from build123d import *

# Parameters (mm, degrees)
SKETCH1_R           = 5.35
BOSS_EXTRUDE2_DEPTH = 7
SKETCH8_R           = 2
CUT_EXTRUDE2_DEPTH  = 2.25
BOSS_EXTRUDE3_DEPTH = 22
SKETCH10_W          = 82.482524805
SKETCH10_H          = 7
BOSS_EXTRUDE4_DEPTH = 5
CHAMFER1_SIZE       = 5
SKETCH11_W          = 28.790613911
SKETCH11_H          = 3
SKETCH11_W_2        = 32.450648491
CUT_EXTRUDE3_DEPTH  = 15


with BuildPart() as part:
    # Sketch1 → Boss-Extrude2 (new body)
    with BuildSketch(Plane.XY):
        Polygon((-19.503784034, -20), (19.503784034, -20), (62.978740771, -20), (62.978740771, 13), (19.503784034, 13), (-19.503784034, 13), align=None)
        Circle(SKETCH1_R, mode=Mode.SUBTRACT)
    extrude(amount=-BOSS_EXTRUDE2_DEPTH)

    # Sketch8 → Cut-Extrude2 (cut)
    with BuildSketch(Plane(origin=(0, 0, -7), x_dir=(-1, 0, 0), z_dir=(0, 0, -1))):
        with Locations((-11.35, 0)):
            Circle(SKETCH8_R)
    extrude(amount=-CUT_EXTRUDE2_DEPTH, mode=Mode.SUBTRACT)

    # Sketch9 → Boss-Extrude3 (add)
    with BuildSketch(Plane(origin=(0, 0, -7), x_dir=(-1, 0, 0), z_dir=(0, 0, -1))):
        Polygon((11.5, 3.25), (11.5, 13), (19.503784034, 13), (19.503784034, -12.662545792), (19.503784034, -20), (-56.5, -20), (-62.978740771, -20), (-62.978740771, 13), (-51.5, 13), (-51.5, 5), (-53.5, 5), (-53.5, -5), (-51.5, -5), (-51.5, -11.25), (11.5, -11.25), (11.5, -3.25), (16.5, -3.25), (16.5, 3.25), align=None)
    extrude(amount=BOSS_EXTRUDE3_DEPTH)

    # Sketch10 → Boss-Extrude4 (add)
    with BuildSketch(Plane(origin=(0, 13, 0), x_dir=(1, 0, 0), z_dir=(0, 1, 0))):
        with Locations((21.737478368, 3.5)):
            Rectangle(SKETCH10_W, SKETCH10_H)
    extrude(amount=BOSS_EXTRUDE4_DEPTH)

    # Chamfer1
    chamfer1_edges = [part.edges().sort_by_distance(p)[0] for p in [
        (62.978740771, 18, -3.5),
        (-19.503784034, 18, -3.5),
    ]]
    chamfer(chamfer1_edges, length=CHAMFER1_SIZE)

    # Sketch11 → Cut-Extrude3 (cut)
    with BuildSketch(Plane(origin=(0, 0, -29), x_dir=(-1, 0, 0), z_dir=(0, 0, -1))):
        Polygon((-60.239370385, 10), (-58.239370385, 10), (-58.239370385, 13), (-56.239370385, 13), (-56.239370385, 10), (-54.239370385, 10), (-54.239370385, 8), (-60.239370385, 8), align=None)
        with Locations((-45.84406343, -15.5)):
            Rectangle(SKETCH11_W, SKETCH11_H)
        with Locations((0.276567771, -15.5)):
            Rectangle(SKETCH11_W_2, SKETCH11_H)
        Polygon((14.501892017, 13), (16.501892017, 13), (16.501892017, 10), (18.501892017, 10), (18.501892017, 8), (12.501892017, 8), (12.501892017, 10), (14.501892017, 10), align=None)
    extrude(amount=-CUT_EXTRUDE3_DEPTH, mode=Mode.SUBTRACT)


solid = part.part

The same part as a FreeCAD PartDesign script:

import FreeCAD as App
import Part
import Sketcher
from FreeCAD import Vector
Q = App.Units.Quantity


def edges_at(feature, points):
    """Names of the edges that pass closest to the given points."""
    edges = feature.Shape.Edges
    near = lambda p: min(range(len(edges)), key=lambda i: edges[i].distToShape(Part.Vertex(*p))[0])
    return sorted({f"Edge{near(p) + 1}" for p in points})


def add_polygon(sketch, points):
    """Adds a closed chain of lines whose ends are joined by coincident constraints."""
    first, n = sketch.GeometryCount, len(points)
    for a, b in zip(points, points[1:] + points[:1]):
        sketch.addGeometry(Part.LineSegment(App.Vector(*a, 0), App.Vector(*b, 0)), False)
    for i in range(n):
        sketch.addConstraint(Sketcher.Constraint("Coincident", first + i, 2, first + (i + 1) % n, 1))

doc = App.newDocument("Part")
body = doc.addObject("PartDesign::Body", "Body")

sketch1 = doc.addObject("Sketcher::SketchObject", "Sketch")
body.addObject(sketch1)
sketch1.AttachmentSupport = (doc.XY_Plane, [""])
sketch1.MapMode = "FlatFace"
add_polygon(sketch1, [(-20, -20), (63, -20), (63, 13), (-20, 13)])
sketch1.addGeometry(Part.Circle(Vector(0, 0, 0), Vector(0, 0, 1), 5), False)
sketch1.addConstraint(Sketcher.Constraint("Horizontal", 0))
sketch1.addConstraint(Sketcher.Constraint("Vertical", 1))
sketch1.addConstraint(Sketcher.Constraint("Horizontal", 2))
sketch1.addConstraint(Sketcher.Constraint("Vertical", 3))
sketch1.addConstraint(Sketcher.Constraint("Coincident", 4, 3, -1, 1))
sketch1.addConstraint(Sketcher.Constraint("Diameter", 4, Q("10.7 mm")))
sketch1.addConstraint(Sketcher.Constraint("DistanceY", 1, 1, 1, 2, Q("33 mm")))
sketch1.addConstraint(Sketcher.Constraint("DistanceY", 0, 2, -1, 1, Q("20 mm")))
sketch1.addConstraint(Sketcher.Constraint("DistanceX", 0, 1, 0, 2, Q("82.482525 mm")))
sketch1.addConstraint(Sketcher.Constraint("DistanceX", -1, 1, 0, 2, Q("62.978741 mm")))
pad1 = doc.addObject("PartDesign::Pad", "Pad")
body.addObject(pad1)
pad1.Profile = sketch1
pad1.Length = 7
pad1.Reversed = True

sketch2 = doc.addObject("Sketcher::SketchObject", "Sketch001")
body.addObject(sketch2)
sketch2.AttachmentSupport = (doc.XY_Plane, [""])
sketch2.MapMode = "FlatFace"
sketch2.AttachmentOffset = App.Placement(Vector(0, 0, -7), App.Rotation())
sketch2.addGeometry(Part.Circle(Vector(11.3, 0, 0), Vector(0, 0, 1), 2), False)
sketch2.addConstraint(Sketcher.Constraint("PointOnObject", 0, 3, -1))
sketch2.addConstraint(Sketcher.Constraint("Diameter", 0, Q("4 mm")))
sketch2.addConstraint(Sketcher.Constraint("DistanceX", -1, 1, 0, 3, Q("11.35 mm")))
pocket1 = doc.addObject("PartDesign::Pocket", "Pocket")
body.addObject(pocket1)
pocket1.Profile = sketch2
pocket1.Length = 2.25
pocket1.Reversed = True

sketch3 = doc.addObject("Sketcher::SketchObject", "Sketch002")
body.addObject(sketch3)
sketch3.AttachmentSupport = (doc.XY_Plane, [""])
sketch3.MapMode = "FlatFace"
sketch3.AttachmentOffset = App.Placement(Vector(0, 0, -7), App.Rotation())
add_polygon(sketch3, [(-11.5, 13), (-11.5, 3.2), (-16.5, 3.2), (-16.5, -3.2), (-11.5, -3.2), (-11.5, -11.2), (51.5, -11.2), (51.5, -5), (53.5, -5), (53.5, 5), (51.5, 5), (51.5, 13), (63, 13), (63, -20), (-19.5, -20), (-19.5, 13)])
sketch3.addConstraint(Sketcher.Constraint("Vertical", 0))
sketch3.addConstraint(Sketcher.Constraint("Horizontal", 1))
sketch3.addConstraint(Sketcher.Constraint("Vertical", 2))
sketch3.addConstraint(Sketcher.Constraint("Horizontal", 3))
sketch3.addConstraint(Sketcher.Constraint("Vertical", 4))
sketch3.addConstraint(Sketcher.Constraint("Horizontal", 5))
sketch3.addConstraint(Sketcher.Constraint("Vertical", 6))
sketch3.addConstraint(Sketcher.Constraint("Horizontal", 7))
sketch3.addConstraint(Sketcher.Constraint("Vertical", 8))
sketch3.addConstraint(Sketcher.Constraint("Horizontal", 9))
sketch3.addConstraint(Sketcher.Constraint("Vertical", 10))
sketch3.addConstraint(Sketcher.Constraint("Horizontal", 11))
sketch3.addConstraint(Sketcher.Constraint("Vertical", 12))
sketch3.addConstraint(Sketcher.Constraint("Horizontal", 13))
sketch3.addConstraint(Sketcher.Constraint("Vertical", 14))
sketch3.addConstraint(Sketcher.Constraint("Horizontal", 15))
sketch3.addConstraint(Sketcher.Constraint("Symmetric", 0, 2, 3, 2, -1))
sketch3.addConstraint(Sketcher.Constraint("Symmetric", 6, 2, 9, 2, -1))
sketch3.addConstraint(Sketcher.Constraint("Horizontal", 11, 2, 14, 2))
sketch3.addConstraint(Sketcher.Constraint("Equal", 4, 10))
sketch3.addConstraint(Sketcher.Constraint("DistanceX", 1, 2, 1, 1, Q("5 mm")))
sketch3.addConstraint(Sketcher.Constraint("DistanceX", 5, 1, 5, 2, Q("63 mm")))
sketch3.addConstraint(Sketcher.Constraint("DistanceX", 7, 1, 7, 2, Q("2 mm")))
sketch3.addConstraint(Sketcher.Constraint("DistanceY", 4, 2, 4, 1, Q("8 mm")))
sketch3.addConstraint(Sketcher.Constraint("DistanceY", 8, 1, 8, 2, Q("10 mm")))
sketch3.addConstraint(Sketcher.Constraint("DistanceY", 12, 2, 12, 1, Q("33 mm")))
sketch3.addConstraint(Sketcher.Constraint("DistanceY", 2, 2, 2, 1, Q("6.5 mm")))
sketch3.addConstraint(Sketcher.Constraint("DistanceX", 0, 2, -1, 1, Q("11.5 mm")))
sketch3.addConstraint(Sketcher.Constraint("DistanceX", 11, 1, 11, 2, Q("11.478741 mm")))
sketch3.addConstraint(Sketcher.Constraint("DistanceX", 13, 2, 13, 1, Q("82.482525 mm")))
pad2 = doc.addObject("PartDesign::Pad", "Pad001")
body.addObject(pad2)
pad2.Profile = sketch3
pad2.Length = 22
pad2.Reversed = True

sketch4 = doc.addObject("Sketcher::SketchObject", "Sketch003")
body.addObject(sketch4)
sketch4.AttachmentSupport = (doc.XZ_Plane, [""])
sketch4.MapMode = "FlatFace"
sketch4.AttachmentOffset = App.Placement(Vector(0, 0, -13), App.Rotation())
add_polygon(sketch4, [(-20, -7), (-20, 0), (63, 0), (63, -7)])
sketch4.addConstraint(Sketcher.Constraint("Vertical", 0))
sketch4.addConstraint(Sketcher.Constraint("Horizontal", 1))
sketch4.addConstraint(Sketcher.Constraint("Vertical", 2))
sketch4.addConstraint(Sketcher.Constraint("Horizontal", 3))
sketch4.addConstraint(Sketcher.Constraint("PointOnObject", 0, 2, -1))
sketch4.addConstraint(Sketcher.Constraint("DistanceY", 0, 1, 0, 2, Q("7 mm")))
sketch4.addConstraint(Sketcher.Constraint("DistanceX", 1, 1, 1, 2, Q("82.482525 mm")))
sketch4.addConstraint(Sketcher.Constraint("DistanceX", -1, 1, 1, 2, Q("62.978741 mm")))
pad3 = doc.addObject("PartDesign::Pad", "Pad002")
body.addObject(pad3)
pad3.Profile = sketch4
pad3.Length = 5
pad3.Reversed = True
doc.recompute()

chamfer = doc.addObject("PartDesign::Chamfer", "Chamfer")
body.addObject(chamfer)
chamfer.Base = (pad3, edges_at(pad3, [(62.979, 18, -3.5), (-19.504, 18, -3.5)]))
chamfer.Size = 5

sketch5 = doc.addObject("Sketcher::SketchObject", "Sketch004")
body.addObject(sketch5)
sketch5.AttachmentSupport = (doc.XY_Plane, [""])
sketch5.MapMode = "FlatFace"
sketch5.AttachmentOffset = App.Placement(Vector(0, 0, -29), App.Rotation())
add_polygon(sketch5, [(58.2, 10), (60.2, 10), (60.2, 8), (54.2, 8), (54.2, 10), (56.2, 10), (56.2, 13), (58.2, 13)])
add_polygon(sketch5, [(60.2, -14), (60.2, -17), (31.4, -17), (31.4, -14)])
add_polygon(sketch5, [(15.9, -14), (15.9, -17), (-16.5, -17), (-16.5, -14)])
add_polygon(sketch5, [(-16.5, 13), (-14.5, 13), (-14.5, 10), (-12.5, 10), (-12.5, 8), (-18.5, 8), (-18.5, 10), (-16.5, 10)])
sketch5.addConstraint(Sketcher.Constraint("Horizontal", 0))
sketch5.addConstraint(Sketcher.Constraint("Vertical", 1))
sketch5.addConstraint(Sketcher.Constraint("Horizontal", 2))
sketch5.addConstraint(Sketcher.Constraint("Vertical", 3))
sketch5.addConstraint(Sketcher.Constraint("Horizontal", 4))
sketch5.addConstraint(Sketcher.Constraint("Vertical", 5))
sketch5.addConstraint(Sketcher.Constraint("Horizontal", 6))
sketch5.addConstraint(Sketcher.Constraint("Vertical", 7))
sketch5.addConstraint(Sketcher.Constraint("Vertical", 8))
sketch5.addConstraint(Sketcher.Constraint("Horizontal", 9))
sketch5.addConstraint(Sketcher.Constraint("Vertical", 10))
sketch5.addConstraint(Sketcher.Constraint("Horizontal", 11))
sketch5.addConstraint(Sketcher.Constraint("Vertical", 12))
sketch5.addConstraint(Sketcher.Constraint("Horizontal", 13))
sketch5.addConstraint(Sketcher.Constraint("Vertical", 14))
sketch5.addConstraint(Sketcher.Constraint("Horizontal", 15))
sketch5.addConstraint(Sketcher.Constraint("Horizontal", 16))
sketch5.addConstraint(Sketcher.Constraint("Vertical", 17))
sketch5.addConstraint(Sketcher.Constraint("Horizontal", 18))
sketch5.addConstraint(Sketcher.Constraint("Vertical", 19))
sketch5.addConstraint(Sketcher.Constraint("Horizontal", 20))
sketch5.addConstraint(Sketcher.Constraint("Vertical", 21))
sketch5.addConstraint(Sketcher.Constraint("Horizontal", 22))
sketch5.addConstraint(Sketcher.Constraint("Vertical", 23))
sketch5.addConstraint(Sketcher.Constraint("Horizontal", 0, 2, 3, 2))
sketch5.addConstraint(Sketcher.Constraint("Horizontal", 9, 2, 12, 2))
sketch5.addConstraint(Sketcher.Constraint("Horizontal", 11, 2, 14, 2))
sketch5.addConstraint(Sketcher.Constraint("Horizontal", 6, 2, 16, 2))
sketch5.addConstraint(Sketcher.Constraint("Horizontal", 7, 2, 17, 2))
sketch5.addConstraint(Sketcher.Constraint("Horizontal", 2, 2, 19, 2))
sketch5.addConstraint(Sketcher.Constraint("Horizontal", 18, 2, 21, 2))
sketch5.addConstraint(Sketcher.Constraint("Vertical", 1, 2, 8, 2))
sketch5.addConstraint(Sketcher.Constraint("Vertical", 14, 2, 22, 2))
sketch5.addConstraint(Sketcher.Constraint("Equal", 0, 4))
sketch5.addConstraint(Sketcher.Constraint("Equal", 4, 6))
sketch5.addConstraint(Sketcher.Constraint("Equal", 6, 16))
sketch5.addConstraint(Sketcher.Constraint("Equal", 16, 18))
sketch5.addConstraint(Sketcher.Constraint("Equal", 2, 20))
sketch5.addConstraint(Sketcher.Constraint("Equal", 22, 1))
sketch5.addConstraint(Sketcher.Constraint("Equal", 7, 8))
sketch5.addConstraint(Sketcher.Constraint("DistanceX", 0, 1, 0, 2, Q("2 mm")))
sketch5.addConstraint(Sketcher.Constraint("DistanceY", 5, 1, 5, 2, Q("3 mm")))
sketch5.addConstraint(Sketcher.Constraint("DistanceY", -1, 1, 0, 2, Q("10 mm")))
sketch5.addConstraint(Sketcher.Constraint("DistanceY", 8, 2, -1, 1, Q("17 mm")))
sketch5.addConstraint(Sketcher.Constraint("DistanceX", 12, 2, 9, 2, Q("15.5 mm")))
sketch5.addConstraint(Sketcher.Constraint("DistanceX", 13, 2, 13, 1, Q("32.450648 mm")))
sketch5.addConstraint(Sketcher.Constraint("DistanceX", 9, 2, 9, 1, Q("28.790614 mm")))
sketch5.addConstraint(Sketcher.Constraint("DistanceX", -1, 1, 0, 2, Q("60.23937 mm")))
pocket2 = doc.addObject("PartDesign::Pocket", "Pocket001")
body.addObject(pocket2)
pocket2.Profile = sketch5
pocket2.Length = 15
pocket2.Reversed = True

doc.recompute()
